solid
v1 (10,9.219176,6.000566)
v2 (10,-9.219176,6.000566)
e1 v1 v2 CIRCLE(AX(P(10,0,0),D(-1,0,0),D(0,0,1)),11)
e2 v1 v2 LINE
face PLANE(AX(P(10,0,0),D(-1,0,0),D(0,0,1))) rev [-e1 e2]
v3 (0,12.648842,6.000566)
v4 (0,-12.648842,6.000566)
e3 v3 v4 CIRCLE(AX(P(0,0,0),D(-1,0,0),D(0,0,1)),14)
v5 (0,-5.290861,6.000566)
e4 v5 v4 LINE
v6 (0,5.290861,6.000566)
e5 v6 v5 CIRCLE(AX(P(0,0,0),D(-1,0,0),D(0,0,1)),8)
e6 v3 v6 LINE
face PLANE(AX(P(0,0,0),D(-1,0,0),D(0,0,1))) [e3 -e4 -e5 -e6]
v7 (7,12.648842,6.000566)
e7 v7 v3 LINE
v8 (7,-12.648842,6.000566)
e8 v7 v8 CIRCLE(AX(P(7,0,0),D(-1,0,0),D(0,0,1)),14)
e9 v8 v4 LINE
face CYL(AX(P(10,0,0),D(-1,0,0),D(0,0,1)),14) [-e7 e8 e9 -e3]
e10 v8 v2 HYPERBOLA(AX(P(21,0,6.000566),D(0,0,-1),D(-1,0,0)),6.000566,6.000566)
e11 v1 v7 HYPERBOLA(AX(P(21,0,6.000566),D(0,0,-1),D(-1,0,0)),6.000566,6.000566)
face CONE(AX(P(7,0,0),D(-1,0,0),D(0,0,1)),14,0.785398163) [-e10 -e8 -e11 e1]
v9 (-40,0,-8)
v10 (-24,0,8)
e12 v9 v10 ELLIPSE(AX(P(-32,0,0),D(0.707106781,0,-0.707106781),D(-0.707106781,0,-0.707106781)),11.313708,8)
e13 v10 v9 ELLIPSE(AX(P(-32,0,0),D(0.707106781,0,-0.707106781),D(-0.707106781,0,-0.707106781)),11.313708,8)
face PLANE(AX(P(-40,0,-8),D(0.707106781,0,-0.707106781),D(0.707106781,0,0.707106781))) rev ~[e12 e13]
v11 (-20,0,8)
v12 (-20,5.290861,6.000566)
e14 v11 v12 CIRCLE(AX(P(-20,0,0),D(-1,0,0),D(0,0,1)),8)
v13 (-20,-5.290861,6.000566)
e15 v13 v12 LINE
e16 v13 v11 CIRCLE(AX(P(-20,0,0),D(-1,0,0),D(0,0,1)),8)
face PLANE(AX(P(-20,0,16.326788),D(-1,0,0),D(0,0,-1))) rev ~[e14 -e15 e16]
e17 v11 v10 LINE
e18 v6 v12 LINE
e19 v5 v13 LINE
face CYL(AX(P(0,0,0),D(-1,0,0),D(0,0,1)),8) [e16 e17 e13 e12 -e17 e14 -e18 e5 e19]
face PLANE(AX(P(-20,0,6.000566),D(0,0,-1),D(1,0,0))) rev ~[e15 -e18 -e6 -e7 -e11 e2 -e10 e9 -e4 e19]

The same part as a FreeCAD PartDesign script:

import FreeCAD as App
import Part
import Sketcher
from FreeCAD import Vector
Q = App.Units.Quantity


def edges_at(feature, points):
    """Names of the edges that pass closest to the given points."""
    edges = feature.Shape.Edges
    near = lambda p: min(range(len(edges)), key=lambda i: edges[i].distToShape(Part.Vertex(*p))[0])
    return sorted({f"Edge{near(p) + 1}" for p in points})


def add_polygon(sketch, points):
    """Adds a closed chain of lines whose ends are joined by coincident constraints."""
    first, n = sketch.GeometryCount, len(points)
    for a, b in zip(points, points[1:] + points[:1]):
        sketch.addGeometry(Part.LineSegment(App.Vector(*a, 0), App.Vector(*b, 0)), False)
    for i in range(n):
        sketch.addConstraint(Sketcher.Constraint("Coincident", first + i, 2, first + (i + 1) % n, 1))

doc = App.newDocument("Part")
body = doc.addObject("PartDesign::Body", "Body")

# Sketch on XZ plane
sketch1 = body.newObject("Sketcher::SketchObject", "Sketch")
sketch1.AttachmentSupport = (doc.getObject("XZ_Plane"), [""])
sketch1.MapMode = "FlatFace"
add_polygon(sketch1, [(-40, 8), (-40, 0), (10, 0), (10, 14), (0, 14), (0, 8)])  # lines 0-5
sketch1.addConstraint(Sketcher.Constraint("Vertical", 0))
sketch1.addConstraint(Sketcher.Constraint("Horizontal", 1))
sketch1.addConstraint(Sketcher.Constraint("Vertical", 2))
sketch1.addConstraint(Sketcher.Constraint("Horizontal", 3))
sketch1.addConstraint(Sketcher.Constraint("Vertical", 4))
sketch1.addConstraint(Sketcher.Constraint("Horizontal", 5))
sketch1.addConstraint(Sketcher.Constraint("PointOnObject", 0, 2, -1))
sketch1.addConstraint(Sketcher.Constraint("PointOnObject", 3, 2, -2))
sketch1.addConstraint(Sketcher.Constraint("DistanceX", 1, 1, 1, 2, Q("50 mm")))
sketch1.addConstraint(Sketcher.Constraint("DistanceX", 3, 2, 3, 1, Q("10 mm")))
sketch1.addConstraint(Sketcher.Constraint("DistanceY", 0, 2, 0, 1, Q("8 mm")))
sketch1.addConstraint(Sketcher.Constraint("DistanceY", 2, 1, 2, 2, Q("14 mm")))
revolution = body.newObject("PartDesign::Revolution", "Revolution")
revolution.Profile = sketch1
revolution.ReferenceAxis = (sketch1, ["H_Axis"])
revolution.Angle = 360
doc.recompute()

chamfer = body.newObject("PartDesign::Chamfer", "Chamfer")
chamfer.Base = (revolution, edges_at(revolution, [(10, 0, -14)]))
chamfer.Size = 3

# Sketch on XZ plane
sketch2 = body.newObject("Sketcher::SketchObject", "Sketch001")
sketch2.AttachmentSupport = (doc.getObject("XZ_Plane"), [""])
sketch2.MapMode = "FlatFace"
add_polygon(sketch2, [(-20, 6.000566), (10, 6.000566), (10, 16.326788), (-20, 16.326788)])  # lines 0-3
sketch2.addConstraint(Sketcher.Constraint("Horizontal", 0))
sketch2.addConstraint(Sketcher.Constraint("Vertical", 1))
sketch2.addConstraint(Sketcher.Constraint("Horizontal", 2))
sketch2.addConstraint(Sketcher.Constraint("Vertical", 3))
sketch2.addConstraint(Sketcher.Constraint("DistanceX", 0, 1, 0, 2, Q("30 mm")))
sketch2.addConstraint(Sketcher.Constraint("DistanceX", -1, 1, 0, 2, Q("10 mm")))
sketch2.addConstraint(Sketcher.Constraint("DistanceY", 1, 1, 1, 2, Q("10.326223 mm")))
sketch2.addConstraint(Sketcher.Constraint("DistanceY", -1, 1, 1, 2, Q("16.326788 mm")))
pocket1 = body.newObject("PartDesign::Pocket", "Pocket")
pocket1.Profile = sketch2
pocket1.Length = 30
pocket1.Midplane = True

# Sketch on XZ plane
sketch3 = body.newObject("Sketcher::SketchObject", "Sketch002")
sketch3.AttachmentSupport = (doc.getObject("XZ_Plane"), [""])
sketch3.MapMode = "FlatFace"
add_polygon(sketch3, [(-24, 8), (-40, 8), (-40, -8)])  # lines 0-2
sketch3.addConstraint(Sketcher.Constraint("Horizontal", 0))
sketch3.addConstraint(Sketcher.Constraint("Vertical", 1))
sketch3.addConstraint(Sketcher.Constraint("Equal", 0, 1))
sketch3.addConstraint(Sketcher.Constraint("DistanceX", 0, 2, 0, 1, Q("16 mm")))
sketch3.addConstraint(Sketcher.Constraint("DistanceX", 0, 2, -1, 1, Q("40 mm")))
sketch3.addConstraint(Sketcher.Constraint("DistanceY", -1, 1, 0, 2, Q("8 mm")))
pocket2 = body.newObject("PartDesign::Pocket", "Pocket001")
pocket2.Profile = sketch3
pocket2.Length = 30
pocket2.Midplane = True

doc.recompute()
